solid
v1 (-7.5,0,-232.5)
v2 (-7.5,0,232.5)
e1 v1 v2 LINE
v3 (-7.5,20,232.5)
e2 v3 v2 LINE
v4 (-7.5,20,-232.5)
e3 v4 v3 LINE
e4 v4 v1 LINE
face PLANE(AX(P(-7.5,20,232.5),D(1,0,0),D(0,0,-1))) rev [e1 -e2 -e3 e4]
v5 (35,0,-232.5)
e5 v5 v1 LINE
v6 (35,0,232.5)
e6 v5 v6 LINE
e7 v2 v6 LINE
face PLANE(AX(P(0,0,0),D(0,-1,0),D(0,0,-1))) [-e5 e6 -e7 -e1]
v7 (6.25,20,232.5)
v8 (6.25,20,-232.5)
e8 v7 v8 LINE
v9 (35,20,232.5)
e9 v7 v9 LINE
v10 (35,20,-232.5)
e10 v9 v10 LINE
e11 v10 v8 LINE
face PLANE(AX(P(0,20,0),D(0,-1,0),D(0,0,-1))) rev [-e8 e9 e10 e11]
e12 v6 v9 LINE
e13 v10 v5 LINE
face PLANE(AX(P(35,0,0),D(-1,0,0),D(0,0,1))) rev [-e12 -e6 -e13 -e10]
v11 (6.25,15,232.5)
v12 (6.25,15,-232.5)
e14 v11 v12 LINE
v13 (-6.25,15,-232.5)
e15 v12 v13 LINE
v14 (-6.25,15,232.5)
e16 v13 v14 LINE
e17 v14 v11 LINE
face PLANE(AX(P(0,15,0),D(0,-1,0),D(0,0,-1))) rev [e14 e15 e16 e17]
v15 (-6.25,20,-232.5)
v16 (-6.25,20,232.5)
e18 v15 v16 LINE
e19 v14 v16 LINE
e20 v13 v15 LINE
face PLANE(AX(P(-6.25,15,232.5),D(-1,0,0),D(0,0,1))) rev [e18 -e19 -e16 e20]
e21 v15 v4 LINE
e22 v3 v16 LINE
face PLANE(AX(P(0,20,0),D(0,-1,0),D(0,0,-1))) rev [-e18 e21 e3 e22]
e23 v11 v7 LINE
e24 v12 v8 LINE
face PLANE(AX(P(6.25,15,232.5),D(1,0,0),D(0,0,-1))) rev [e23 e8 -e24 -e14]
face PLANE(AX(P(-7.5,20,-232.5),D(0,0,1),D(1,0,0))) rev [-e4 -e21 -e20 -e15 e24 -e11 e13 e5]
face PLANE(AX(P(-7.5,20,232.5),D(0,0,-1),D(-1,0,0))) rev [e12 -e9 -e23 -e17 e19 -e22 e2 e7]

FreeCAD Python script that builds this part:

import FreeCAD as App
import Part
import Sketcher
Q = App.Units.Quantity


def add_polygon(sketch, points):
    """Adds a closed chain of lines whose ends are joined by coincident constraints."""
    first, n = sketch.GeometryCount, len(points)
    for a, b in zip(points, points[1:] + points[:1]):
        sketch.addGeometry(Part.LineSegment(App.Vector(*a, 0), App.Vector(*b, 0)), False)
    for i in range(n):
        sketch.addConstraint(Sketcher.Constraint("Coincident", first + i, 2, first + (i + 1) % n, 1))

doc = App.newDocument("Part")
body = doc.addObject("PartDesign::Body", "Body")

# Sketch on XZ plane
sketch1 = body.newObject("Sketcher::SketchObject", "Sketch")
sketch1.AttachmentSupport = (doc.getObject("XZ_Plane"), [""])
sketch1.MapMode = "FlatFace"
add_polygon(sketch1, [(-8, -232), (-8, 232), (8, 232), (8, -232)])  # lines 0-3
sketch1.addConstraint([
    Sketcher.Constraint("Vertical", 0),
    Sketcher.Constraint("Horizontal", 1),
    Sketcher.Constraint("Vertical", 2),
    Sketcher.Constraint("Horizontal", 3),
    Sketcher.Constraint("Symmetric", 0, 2, 2, 2, -1, 1),
    Sketcher.Constraint("DistanceX", 1, 1, 1, 2, Q("15 mm")),
    Sketcher.Constraint("DistanceY", 0, 1, 0, 2, Q("465 mm")),
])
pad1 = body.newObject("PartDesign::Pad", "Pad")
pad1.Profile = sketch1
pad1.Length = 20
pad1.Reversed = True

# Sketch on XZ plane
sketch2 = body.newObject("Sketcher::SketchObject", "Sketch001")
sketch2.AttachmentSupport = (doc.getObject("XZ_Plane"), [""])
sketch2.MapMode = "FlatFace"
sketch2.AttachmentOffset = App.Placement(App.Vector(0, 0, -20), App.Rotation())
add_polygon(sketch2, [(-6, -232), (-6, 232), (6, 232), (6, -232)])  # lines 0-3
sketch2.addConstraint([
    Sketcher.Constraint("Vertical", 0),
    Sketcher.Constraint("Horizontal", 1),
    Sketcher.Constraint("Vertical", 2),
    Sketcher.Constraint("Horizontal", 3),
    Sketcher.Constraint("Symmetric", 0, 2, 2, 2, -1, 1),
    Sketcher.Constraint("DistanceY", 0, 1, 0, 2, Q("465 mm")),
    Sketcher.Constraint("DistanceX", 1, 1, 1, 2, Q("12.5 mm")),
])
pocket1 = body.newObject("PartDesign::Pocket", "Pocket")
pocket1.Profile = sketch2
pocket1.Length = 5
pocket1.Reversed = True

# Sketch on YZ plane
sketch3 = body.newObject("Sketcher::SketchObject", "Sketch002")
sketch3.AttachmentSupport = (doc.getObject("YZ_Plane"), [""])
sketch3.MapMode = "FlatFace"
sketch3.AttachmentOffset = App.Placement(App.Vector(0, 0, 7.5), App.Rotation())
add_polygon(sketch3, [(20, -232), (0, -232), (0, 232), (20, 232)])  # lines 0-3
sketch3.addConstraint([
    Sketcher.Constraint("Horizontal", 0),
    Sketcher.Constraint("Vertical", 1),
    Sketcher.Constraint("Horizontal", 2),
    Sketcher.Constraint("Vertical", 3),
    Sketcher.Constraint("Symmetric", 0, 2, 1, 2, -1, 1),
    Sketcher.Constraint("DistanceX", 0, 2, 0, 1, Q("20 mm")),
    Sketcher.Constraint("DistanceY", 1, 1, 1, 2, Q("465 mm")),
])
pad2 = body.newObject("PartDesign::Pad", "Pad001")
pad2.Profile = sketch3
pad2.Length = 27.5

doc.recompute()
